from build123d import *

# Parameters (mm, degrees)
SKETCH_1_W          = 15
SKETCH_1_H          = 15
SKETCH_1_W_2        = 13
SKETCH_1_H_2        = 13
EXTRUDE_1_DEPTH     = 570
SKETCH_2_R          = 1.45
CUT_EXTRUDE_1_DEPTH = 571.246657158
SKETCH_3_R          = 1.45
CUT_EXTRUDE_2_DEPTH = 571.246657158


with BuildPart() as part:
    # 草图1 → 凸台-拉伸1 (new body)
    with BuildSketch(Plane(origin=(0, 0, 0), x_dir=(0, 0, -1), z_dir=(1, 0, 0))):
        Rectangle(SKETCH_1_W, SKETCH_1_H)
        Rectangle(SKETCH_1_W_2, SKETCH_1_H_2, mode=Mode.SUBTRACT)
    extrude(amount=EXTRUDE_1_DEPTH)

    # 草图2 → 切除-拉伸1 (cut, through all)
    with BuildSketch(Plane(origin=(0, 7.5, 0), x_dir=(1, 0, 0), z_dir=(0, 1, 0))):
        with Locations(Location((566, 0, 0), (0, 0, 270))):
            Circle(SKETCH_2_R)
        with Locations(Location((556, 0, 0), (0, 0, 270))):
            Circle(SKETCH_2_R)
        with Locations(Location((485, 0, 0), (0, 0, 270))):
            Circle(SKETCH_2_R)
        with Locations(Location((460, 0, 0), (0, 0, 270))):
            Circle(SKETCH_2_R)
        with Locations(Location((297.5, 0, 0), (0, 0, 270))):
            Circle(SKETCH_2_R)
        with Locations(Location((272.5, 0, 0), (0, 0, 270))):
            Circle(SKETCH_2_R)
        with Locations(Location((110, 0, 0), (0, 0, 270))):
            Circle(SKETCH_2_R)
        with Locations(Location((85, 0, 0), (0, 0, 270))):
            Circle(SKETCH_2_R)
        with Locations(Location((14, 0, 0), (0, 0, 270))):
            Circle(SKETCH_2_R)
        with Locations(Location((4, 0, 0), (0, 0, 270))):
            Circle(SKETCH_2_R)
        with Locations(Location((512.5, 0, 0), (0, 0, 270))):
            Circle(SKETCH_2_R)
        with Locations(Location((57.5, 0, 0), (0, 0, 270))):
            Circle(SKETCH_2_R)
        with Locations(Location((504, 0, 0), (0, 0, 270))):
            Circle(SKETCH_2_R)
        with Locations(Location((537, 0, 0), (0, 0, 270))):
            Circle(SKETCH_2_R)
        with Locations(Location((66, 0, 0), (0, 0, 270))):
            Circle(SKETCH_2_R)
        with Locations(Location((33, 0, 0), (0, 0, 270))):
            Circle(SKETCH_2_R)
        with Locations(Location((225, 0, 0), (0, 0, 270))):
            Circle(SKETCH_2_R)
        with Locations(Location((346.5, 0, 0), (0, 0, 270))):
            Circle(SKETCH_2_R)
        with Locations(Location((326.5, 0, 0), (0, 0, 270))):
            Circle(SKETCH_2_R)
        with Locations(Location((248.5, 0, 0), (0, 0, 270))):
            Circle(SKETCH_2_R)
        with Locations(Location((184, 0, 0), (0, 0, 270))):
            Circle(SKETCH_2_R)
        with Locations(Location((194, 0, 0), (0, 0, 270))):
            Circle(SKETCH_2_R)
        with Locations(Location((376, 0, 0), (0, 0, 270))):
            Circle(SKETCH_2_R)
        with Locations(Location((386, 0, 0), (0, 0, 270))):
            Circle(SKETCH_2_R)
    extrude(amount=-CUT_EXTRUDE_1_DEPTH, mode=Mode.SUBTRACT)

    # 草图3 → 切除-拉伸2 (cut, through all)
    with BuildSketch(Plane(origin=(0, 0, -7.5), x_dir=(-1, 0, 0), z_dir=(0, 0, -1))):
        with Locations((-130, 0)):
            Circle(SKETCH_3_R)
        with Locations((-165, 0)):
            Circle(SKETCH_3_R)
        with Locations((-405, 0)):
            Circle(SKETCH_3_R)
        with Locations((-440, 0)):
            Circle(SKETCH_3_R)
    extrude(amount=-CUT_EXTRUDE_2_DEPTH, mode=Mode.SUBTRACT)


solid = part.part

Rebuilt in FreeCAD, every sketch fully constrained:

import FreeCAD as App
import Part
import Sketcher
Q = App.Units.Quantity

doc = App.newDocument("Part")
body = doc.addObject("PartDesign::Body", "Body")

# Sketch on YZ plane
sketch1 = body.newObject("Sketcher::SketchObject", "Sketch")
sketch1.AttachmentSupport = (doc.getObject("YZ_Plane"), [""])
sketch1.MapMode = "FlatFace"
sketch1.addGeometry(Part.LineSegment(App.Vector(8, 8, 0), App.Vector(-8, 8, 0)), False)
sketch1.addGeometry(Part.LineSegment(App.Vector(-8, 8, 0), App.Vector(-8, -8, 0)), False)
sketch1.addGeometry(Part.LineSegment(App.Vector(-8, -8, 0), App.Vector(8, -8, 0)), False)
sketch1.addGeometry(Part.LineSegment(App.Vector(8, -8, 0), App.Vector(8, 8, 0)), False)
sketch1.addGeometry(Part.LineSegment(App.Vector(-6, -6, 0), App.Vector(-6, 6, 0)), False)
sketch1.addGeometry(Part.LineSegment(App.Vector(-6, 6, 0), App.Vector(6, 6, 0)), False)
sketch1.addGeometry(Part.LineSegment(App.Vector(6, 6, 0), App.Vector(6, -6, 0)), False)
sketch1.addGeometry(Part.LineSegment(App.Vector(6, -6, 0), App.Vector(-6, -6, 0)), False)
sketch1.addConstraint(Sketcher.Constraint("Coincident", 0, 2, 1, 1))
sketch1.addConstraint(Sketcher.Constraint("Coincident", 1, 2, 2, 1))
sketch1.addConstraint(Sketcher.Constraint("Coincident", 2, 2, 3, 1))
sketch1.addConstraint(Sketcher.Constraint("Coincident", 3, 2, 0, 1))
sketch1.addConstraint(Sketcher.Constraint("Coincident", 4, 2, 5, 1))
sketch1.addConstraint(Sketcher.Constraint("Coincident", 5, 2, 6, 1))
sketch1.addConstraint(Sketcher.Constraint("Coincident", 6, 2, 7, 1))
sketch1.addConstraint(Sketcher.Constraint("Coincident", 7, 2, 4, 1))
sketch1.addConstraint(Sketcher.Constraint("Horizontal", 0))
sketch1.addConstraint(Sketcher.Constraint("Vertical", 1))
sketch1.addConstraint(Sketcher.Constraint("Horizontal", 2))
sketch1.addConstraint(Sketcher.Constraint("Vertical", 3))
sketch1.addConstraint(Sketcher.Constraint("Vertical", 4))
sketch1.addConstraint(Sketcher.Constraint("Horizontal", 5))
sketch1.addConstraint(Sketcher.Constraint("Vertical", 6))
sketch1.addConstraint(Sketcher.Constraint("Horizontal", 7))
sketch1.addConstraint(Sketcher.Constraint("Symmetric", 0, 2, 2, 2, -1, 1))
sketch1.addConstraint(Sketcher.Constraint("Symmetric", 4, 2, 6, 2, -1, 1))
sketch1.addConstraint(Sketcher.Constraint("Equal", 2, 1))
sketch1.addConstraint(Sketcher.Constraint("Equal", 7, 4))
sketch1.addConstraint(Sketcher.Constraint("DistanceX", 0, 2, 0, 1, Q("15 mm")))
sketch1.addConstraint(Sketcher.Constraint("DistanceX", 5, 1, 5, 2, Q("13 mm")))
pad1 = body.newObject("PartDesign::Pad", "Pad")
pad1.Profile = sketch1
pad1.Length = 570

# Sketch on XZ plane
sketch2 = body.newObject("Sketcher::SketchObject", "Sketch001")
sketch2.AttachmentSupport = (doc.getObject("XZ_Plane"), [""])
sketch2.MapMode = "FlatFace"
sketch2.AttachmentOffset = App.Placement(App.Vector(0, 0, -7.5), App.Rotation())
sketch2.addGeometry(Part.Circle(App.Vector(566, 0, 0), App.Vector(0, 0, 1), 1.4), False)
sketch2.addGeometry(Part.Circle(App.Vector(556, 0, 0), App.Vector(0, 0, 1), 1.4), False)
sketch2.addGeometry(Part.Circle(App.Vector(485, 0, 0), App.Vector(0, 0, 1), 1.4), False)
sketch2.addGeometry(Part.Circle(App.Vector(460, 0, 0), App.Vector(0, 0, 1), 1.4), False)
sketch2.addGeometry(Part.Circle(App.Vector(297.5, 0, 0), App.Vector(0, 0, 1), 1.4), False)
sketch2.addGeometry(Part.Circle(App.Vector(272.5, 0, 0), App.Vector(0, 0, 1), 1.4), False)
sketch2.addGeometry(Part.Circle(App.Vector(110, 0, 0), App.Vector(0, 0, 1), 1.4), False)
sketch2.addGeometry(Part.Circle(App.Vector(85, 0, 0), App.Vector(0, 0, 1), 1.4), False)
sketch2.addGeometry(Part.Circle(App.Vector(14, 0, 0), App.Vector(0, 0, 1), 1.4), False)
sketch2.addGeometry(Part.Circle(App.Vector(4, 0, 0), App.Vector(0, 0, 1), 1.4), False)
sketch2.addGeometry(Part.Circle(App.Vector(512.5, 0, 0), App.Vector(0, 0, 1), 1.4), False)
sketch2.addGeometry(Part.Circle(App.Vector(57.5, 0, 0), App.Vector(0, 0, 1), 1.4), False)
sketch2.addGeometry(Part.Circle(App.Vector(504, 0, 0), App.Vector(0, 0, 1), 1.4), False)
sketch2.addGeometry(Part.Circle(App.Vector(537, 0, 0), App.Vector(0, 0, 1), 1.4), False)
sketch2.addGeometry(Part.Circle(App.Vector(66, 0, 0), App.Vector(0, 0, 1), 1.4), False)
sketch2.addGeometry(Part.Circle(App.Vector(33, 0, 0), App.Vector(0, 0, 1), 1.4), False)
sketch2.addGeometry(Part.Circle(App.Vector(225, 0, 0), App.Vector(0, 0, 1), 1.4), False)
sketch2.addGeometry(Part.Circle(App.Vector(346.5, 0, 0), App.Vector(0, 0, 1), 1.4), False)
sketch2.addGeometry(Part.Circle(App.Vector(326.5, 0, 0), App.Vector(0, 0, 1), 1.4), False)
sketch2.addGeometry(Part.Circle(App.Vector(248.5, 0, 0), App.Vector(0, 0, 1), 1.4), False)
sketch2.addGeometry(Part.Circle(App.Vector(184, 0, 0), App.Vector(0, 0, 1), 1.4), False)
sketch2.addGeometry(Part.Circle(App.Vector(194, 0, 0), App.Vector(0, 0, 1), 1.4), False)
sketch2.addGeometry(Part.Circle(App.Vector(376, 0, 0), App.Vector(0, 0, 1), 1.4), False)
sketch2.addGeometry(Part.Circle(App.Vector(386, 0, 0), App.Vector(0, 0, 1), 1.4), False)
sketch2.addConstraint(Sketcher.Constraint("Equal", 0, 1))
sketch2.addConstraint(Sketcher.Constraint("Equal", 1, 2))
sketch2.addConstraint(Sketcher.Constraint("Equal", 2, 3))
sketch2.addConstraint(Sketcher.Constraint("Equal", 3, 4))
sketch2.addConstraint(Sketcher.Constraint("Equal", 4, 5))
sketch2.addConstraint(Sketcher.Constraint("Equal", 5, 6))
sketch2.addConstraint(Sketcher.Constraint("Equal", 6, 7))
sketch2.addConstraint(Sketcher.Constraint("Equal", 7, 8))
sketch2.addConstraint(Sketcher.Constraint("Equal", 8, 9))
sketch2.addConstraint(Sketcher.Constraint("Equal", 9, 10))
sketch2.addConstraint(Sketcher.Constraint("Equal", 10, 11))
sketch2.addConstraint(Sketcher.Constraint("Equal", 11, 12))
sketch2.addConstraint(Sketcher.Constraint("Equal", 12, 13))
sketch2.addConstraint(Sketcher.Constraint("Equal", 13, 14))
sketch2.addConstraint(Sketcher.Constraint("Equal", 14, 15))
sketch2.addConstraint(Sketcher.Constraint("Equal", 15, 16))
sketch2.addConstraint(Sketcher.Constraint("Equal", 16, 17))
sketch2.addConstraint(Sketcher.Constraint("Equal", 17, 18))
sketch2.addConstraint(Sketcher.Constraint("Equal", 18, 19))
sketch2.addConstraint(Sketcher.Constraint("Equal", 19, 20))
sketch2.addConstraint(Sketcher.Constraint("Equal", 20, 21))
sketch2.addConstraint(Sketcher.Constraint("Equal", 21, 22))
sketch2.addConstraint(Sketcher.Constraint("Equal", 22, 23))
sketch2.addConstraint(Sketcher.Constraint("PointOnObject", 0, 3, -1))
sketch2.addConstraint(Sketcher.Constraint("PointOnObject", 1, 3, -1))
sketch2.addConstraint(Sketcher.Constraint("PointOnObject", 2, 3, -1))
sketch2.addConstraint(Sketcher.Constraint("PointOnObject", 3, 3, -1))
sketch2.addConstraint(Sketcher.Constraint("PointOnObject", 4, 3, -1))
sketch2.addConstraint(Sketcher.Constraint("PointOnObject", 5, 3, -1))
sketch2.addConstraint(Sketcher.Constraint("PointOnObject", 6, 3, -1))
sketch2.addConstraint(Sketcher.Constraint("PointOnObject", 7, 3, -1))
sketch2.addConstraint(Sketcher.Constraint("PointOnObject", 8, 3, -1))
sketch2.addConstraint(Sketcher.Constraint("PointOnObject", 9, 3, -1))
sketch2.addConstraint(Sketcher.Constraint("PointOnObject", 10, 3, -1))
sketch2.addConstraint(Sketcher.Constraint("PointOnObject", 11, 3, -1))
sketch2.addConstraint(Sketcher.Constraint("PointOnObject", 12, 3, -1))
sketch2.addConstraint(Sketcher.Constraint("PointOnObject", 13, 3, -1))
sketch2.addConstraint(Sketcher.Constraint("PointOnObject", 14, 3, -1))
sketch2.addConstraint(Sketcher.Constraint("PointOnObject", 15, 3, -1))
sketch2.addConstraint(Sketcher.Constraint("PointOnObject", 16, 3, -1))
sketch2.addConstraint(Sketcher.Constraint("PointOnObject", 17, 3, -1))
sketch2.addConstraint(Sketcher.Constraint("PointOnObject", 18, 3, -1))
sketch2.addConstraint(Sketcher.Constraint("PointOnObject", 19, 3, -1))
sketch2.addConstraint(Sketcher.Constraint("PointOnObject", 20, 3, -1))
sketch2.addConstraint(Sketcher.Constraint("PointOnObject", 21, 3, -1))
sketch2.addConstraint(Sketcher.Constraint("PointOnObject", 22, 3, -1))
sketch2.addConstraint(Sketcher.Constraint("PointOnObject", 23, 3, -1))
sketch2.addConstraint(Sketcher.Constraint("Diameter", 0, Q("2.9 mm")))
sketch2.addConstraint(Sketcher.Constraint("DistanceX", -1, 1, 0, 3, Q("566 mm")))
sketch2.addConstraint(Sketcher.Constraint("DistanceX", -1, 1, 1, 3, Q("556 mm")))
sketch2.addConstraint(Sketcher.Constraint("DistanceX", -1, 1, 2, 3, Q("485 mm")))
sketch2.addConstraint(Sketcher.Constraint("DistanceX", -1, 1, 3, 3, Q("460 mm")))
sketch2.addConstraint(Sketcher.Constraint("DistanceX", -1, 1, 6, 3, Q("110 mm")))
sketch2.addConstraint(Sketcher.Constraint("DistanceX", -1, 1, 7, 3, Q("85 mm")))
sketch2.addConstraint(Sketcher.Constraint("DistanceX", -1, 1, 8, 3, Q("14 mm")))
sketch2.addConstraint(Sketcher.Constraint("DistanceX", -1, 1, 9, 3, Q("4 mm")))
sketch2.addConstraint(Sketcher.Constraint("DistanceX", -1, 1, 12, 3, Q("504 mm")))
sketch2.addConstraint(Sketcher.Constraint("DistanceX", -1, 1, 13, 3, Q("537 mm")))
sketch2.addConstraint(Sketcher.Constraint("DistanceX", -1, 1, 14, 3, Q("66 mm")))
sketch2.addConstraint(Sketcher.Constraint("DistanceX", -1, 1, 15, 3, Q("33 mm")))
sketch2.addConstraint(Sketcher.Constraint("DistanceX", -1, 1, 16, 3, Q("225 mm")))
sketch2.addConstraint(Sketcher.Constraint("DistanceX", -1, 1, 20, 3, Q("184 mm")))
sketch2.addConstraint(Sketcher.Constraint("DistanceX", -1, 1, 21, 3, Q("194 mm")))
sketch2.addConstraint(Sketcher.Constraint("DistanceX", -1, 1, 22, 3, Q("376 mm")))
sketch2.addConstraint(Sketcher.Constraint("DistanceX", -1, 1, 23, 3, Q("386 mm")))
sketch2.addConstraint(Sketcher.Constraint("DistanceX", 5, 3, 4, 3, Q("25 mm")))
sketch2.addConstraint(Sketcher.Constraint("DistanceX", 4, 3, 10, 3, Q("215 mm")))
sketch2.addConstraint(Sketcher.Constraint("DistanceX", 11, 3, 5, 3, Q("215 mm")))
sketch2.addConstraint(Sketcher.Constraint("DistanceX", 4, 3, 17, 3, Q("49 mm")))
sketch2.addConstraint(Sketcher.Constraint("DistanceX", 18, 3, 17, 3, Q("20 mm")))
sketch2.addConstraint(Sketcher.Constraint("DistanceX", 19, 3, 5, 3, Q("24 mm")))
sketch2.addConstraint(Sketcher.Constraint("DistanceX", -1, 1, 4, 3, Q("297.5 mm")))
pocket1 = body.newObject("PartDesign::Pocket", "Pocket")
pocket1.Profile = sketch2
pocket1.Type = "ThroughAll"
pocket1.Reversed = True

# Sketch on XY plane
sketch3 = body.newObject("Sketcher::SketchObject", "Sketch002")
sketch3.AttachmentSupport = (doc.getObject("XY_Plane"), [""])
sketch3.MapMode = "FlatFace"
sketch3.AttachmentOffset = App.Placement(App.Vector(0, 0, -7.5), App.Rotation())
sketch3.addGeometry(Part.Circle(App.Vector(130, 0, 0), App.Vector(0, 0, 1), 1.4), False)
sketch3.addGeometry(Part.Circle(App.Vector(165, 0, 0), App.Vector(0, 0, 1), 1.4), False)
sketch3.addGeometry(Part.Circle(App.Vector(405, 0, 0), App.Vector(0, 0, 1), 1.4), False)
sketch3.addGeometry(Part.Circle(App.Vector(440, 0, 0), App.Vector(0, 0, 1), 1.4), False)
sketch3.addConstraint(Sketcher.Constraint("Equal", 0, 1))
sketch3.addConstraint(Sketcher.Constraint("Equal", 1, 2))
sketch3.addConstraint(Sketcher.Constraint("Equal", 2, 3))
sketch3.addConstraint(Sketcher.Constraint("PointOnObject", 0, 3, -1))
sketch3.addConstraint(Sketcher.Constraint("PointOnObject", 1, 3, -1))
sketch3.addConstraint(Sketcher.Constraint("PointOnObject", 2, 3, -1))
sketch3.addConstraint(Sketcher.Constraint("PointOnObject", 3, 3, -1))
sketch3.addConstraint(Sketcher.Constraint("Diameter", 0, Q("2.9 mm")))
sketch3.addConstraint(Sketcher.Constraint("DistanceX", -1, 1, 0, 3, Q("130 mm")))
sketch3.addConstraint(Sketcher.Constraint("DistanceX", -1, 1, 1, 3, Q("165 mm")))
sketch3.addConstraint(Sketcher.Constraint("DistanceX", -1, 1, 2, 3, Q("405 mm")))
sketch3.addConstraint(Sketcher.Constraint("DistanceX", -1, 1, 3, 3, Q("440 mm")))
pocket2 = body.newObject("PartDesign::Pocket", "Pocket001")
pocket2.Profile = sketch3
pocket2.Type = "ThroughAll"
pocket2.Reversed = True

doc.recompute()
